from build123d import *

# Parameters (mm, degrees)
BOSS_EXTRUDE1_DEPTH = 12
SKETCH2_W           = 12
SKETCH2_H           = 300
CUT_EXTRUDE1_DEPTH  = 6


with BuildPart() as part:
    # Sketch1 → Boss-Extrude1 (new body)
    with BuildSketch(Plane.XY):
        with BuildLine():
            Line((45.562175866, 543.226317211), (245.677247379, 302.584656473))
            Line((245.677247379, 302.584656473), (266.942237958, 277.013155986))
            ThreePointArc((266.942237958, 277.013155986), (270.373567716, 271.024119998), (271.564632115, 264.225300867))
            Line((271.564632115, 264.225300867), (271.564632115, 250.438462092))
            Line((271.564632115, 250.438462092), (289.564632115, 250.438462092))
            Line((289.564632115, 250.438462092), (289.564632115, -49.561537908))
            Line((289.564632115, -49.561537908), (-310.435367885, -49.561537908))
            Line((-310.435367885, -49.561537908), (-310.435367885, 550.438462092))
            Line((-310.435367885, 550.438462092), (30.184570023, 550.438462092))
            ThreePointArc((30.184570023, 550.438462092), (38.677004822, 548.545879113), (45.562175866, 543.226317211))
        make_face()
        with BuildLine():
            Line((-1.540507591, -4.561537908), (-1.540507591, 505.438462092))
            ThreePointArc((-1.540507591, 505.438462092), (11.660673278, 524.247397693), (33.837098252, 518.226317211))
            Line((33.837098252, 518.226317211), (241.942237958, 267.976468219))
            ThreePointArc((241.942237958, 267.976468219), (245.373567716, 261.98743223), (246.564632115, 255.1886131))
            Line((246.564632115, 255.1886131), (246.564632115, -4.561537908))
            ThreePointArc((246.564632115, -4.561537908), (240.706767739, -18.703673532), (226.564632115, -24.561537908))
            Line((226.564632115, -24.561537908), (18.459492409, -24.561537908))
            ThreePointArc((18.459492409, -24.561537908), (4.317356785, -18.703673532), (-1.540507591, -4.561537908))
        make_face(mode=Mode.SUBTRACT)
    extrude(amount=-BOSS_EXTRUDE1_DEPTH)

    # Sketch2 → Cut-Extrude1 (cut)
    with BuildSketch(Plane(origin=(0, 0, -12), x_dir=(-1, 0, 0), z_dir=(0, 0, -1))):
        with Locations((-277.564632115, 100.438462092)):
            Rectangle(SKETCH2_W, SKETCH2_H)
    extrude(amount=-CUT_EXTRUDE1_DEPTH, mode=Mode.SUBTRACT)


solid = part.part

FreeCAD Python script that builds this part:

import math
import FreeCAD as App
import Part
import Sketcher

V = App.Vector
Q = App.Units.Quantity


def add_polygon(sketch, points):
    """Adds a closed chain of lines whose ends are joined by coincident constraints."""
    first, n = sketch.GeometryCount, len(points)
    for a, b in zip(points, points[1:] + points[:1]):
        sketch.addGeometry(Part.LineSegment(App.Vector(*a, 0), App.Vector(*b, 0)), False)
    for i in range(n):
        sketch.addConstraint(Sketcher.Constraint("Coincident", first + i, 2, first + (i + 1) % n, 1))

doc = App.newDocument("Part")
body = doc.addObject("PartDesign::Body", "Body")

# Sketch on XY plane
sketch1 = body.newObject("Sketcher::SketchObject", "Sketch")
sketch1.AttachmentSupport = (doc.getObject("XY_Plane"), [""])
sketch1.MapMode = "FlatFace"
sketch1.addGeometry(Part.LineSegment(V(246, 303, 0), V(46, 543, 0)), False)
sketch1.addGeometry(Part.ArcOfCircle(Part.Circle(V(30, 530, 0), V(0, 0, 1), 20), math.radians(40), math.radians(90)), False)
sketch1.addGeometry(Part.LineSegment(V(30, 550, 0), V(-310, 550, 0)), False)
sketch1.addGeometry(Part.LineSegment(V(-310, 550, 0), V(-310, -50, 0)), False)
sketch1.addGeometry(Part.LineSegment(V(-310, -50, 0), V(290, -50, 0)), False)
sketch1.addGeometry(Part.LineSegment(V(290, -50, 0), V(290, 250, 0)), False)
sketch1.addGeometry(Part.LineSegment(V(290, 250, 0), V(272, 250, 0)), False)
sketch1.addGeometry(Part.LineSegment(V(272, 250, 0), V(272, 264, 0)), False)
sketch1.addGeometry(Part.ArcOfCircle(Part.Circle(V(252, 264, 0), V(0, 0, 1), 20), math.radians(0), math.radians(40)), False)
sketch1.addGeometry(Part.LineSegment(V(267, 277, 0), V(246, 303, 0)), False)
sketch1.addGeometry(Part.LineSegment(V(-2, -5, 0), V(-2, 505, 0)), False)
sketch1.addGeometry(Part.ArcOfCircle(Part.Circle(V(18, 505, 0), V(0, 0, 1), 20), math.radians(40), math.radians(180)), False)
sketch1.addGeometry(Part.LineSegment(V(34, 518, 0), V(242, 268, 0)), False)
sketch1.addGeometry(Part.ArcOfCircle(Part.Circle(V(227, 255, 0), V(0, 0, 1), 20), math.radians(0), math.radians(40)), False)
sketch1.addGeometry(Part.LineSegment(V(247, 255, 0), V(247, -5, 0)), False)
sketch1.addGeometry(Part.ArcOfCircle(Part.Circle(V(227, -5, 0), V(0, 0, 1), 20), math.radians(-90), math.radians(0)), False)
sketch1.addGeometry(Part.LineSegment(V(227, -25, 0), V(18, -25, 0)), False)
sketch1.addGeometry(Part.ArcOfCircle(Part.Circle(V(18, -5, 0), V(0, 0, 1), 20), math.radians(180), math.radians(270)), False)
sketch1.addConstraint(Sketcher.Constraint("Tangent", 0, 2, 1, 1))
sketch1.addConstraint(Sketcher.Constraint("Tangent", 1, 2, 2, 1))
sketch1.addConstraint(Sketcher.Constraint("Coincident", 2, 2, 3, 1))
sketch1.addConstraint(Sketcher.Constraint("Coincident", 3, 2, 4, 1))
sketch1.addConstraint(Sketcher.Constraint("Coincident", 4, 2, 5, 1))
sketch1.addConstraint(Sketcher.Constraint("Coincident", 5, 2, 6, 1))
sketch1.addConstraint(Sketcher.Constraint("Coincident", 6, 2, 7, 1))
sketch1.addConstraint(Sketcher.Constraint("Tangent", 7, 2, 8, 1))
sketch1.addConstraint(Sketcher.Constraint("Tangent", 8, 2, 9, 1))
sketch1.addConstraint(Sketcher.Constraint("Coincident", 9, 2, 0, 1))
sketch1.addConstraint(Sketcher.Constraint("Tangent", 10, 2, 11, 2))
sketch1.addConstraint(Sketcher.Constraint("Tangent", 11, 1, 12, 1))
sketch1.addConstraint(Sketcher.Constraint("Tangent", 12, 2, 13, 2))
sketch1.addConstraint(Sketcher.Constraint("Tangent", 13, 1, 14, 1))
sketch1.addConstraint(Sketcher.Constraint("Tangent", 14, 2, 15, 2))
sketch1.addConstraint(Sketcher.Constraint("Tangent", 15, 1, 16, 1))
sketch1.addConstraint(Sketcher.Constraint("Tangent", 16, 2, 17, 2))
sketch1.addConstraint(Sketcher.Constraint("Tangent", 17, 1, 10, 1))
sketch1.addConstraint(Sketcher.Constraint("Horizontal", 2))
sketch1.addConstraint(Sketcher.Constraint("Vertical", 3))
sketch1.addConstraint(Sketcher.Constraint("Horizontal", 4))
sketch1.addConstraint(Sketcher.Constraint("Vertical", 5))
sketch1.addConstraint(Sketcher.Constraint("Horizontal", 6))
sketch1.addConstraint(Sketcher.Constraint("Vertical", 7))
sketch1.addConstraint(Sketcher.Constraint("Vertical", 10))
sketch1.addConstraint(Sketcher.Constraint("Vertical", 14))
sketch1.addConstraint(Sketcher.Constraint("Horizontal", 16))
sketch1.addConstraint(Sketcher.Constraint("Equal", 1, 8))
sketch1.addConstraint(Sketcher.Constraint("Equal", 8, 11))
sketch1.addConstraint(Sketcher.Constraint("Equal", 11, 13))
sketch1.addConstraint(Sketcher.Constraint("Equal", 13, 15))
sketch1.addConstraint(Sketcher.Constraint("Equal", 15, 17))
sketch1.addConstraint(Sketcher.Constraint("Parallel", 0, 9))
sketch1.addConstraint(Sketcher.Constraint("Parallel", 9, 12))
sketch1.addConstraint(Sketcher.Constraint("Equal", 4, 3))
sketch1.addConstraint(Sketcher.Constraint("Radius", 1, Q("20 mm")))
sketch1.addConstraint(Sketcher.Constraint("DistanceX", 4, 1, 4, 2, Q("600 mm")))
sketch1.addConstraint(Sketcher.Constraint("DistanceX", 6, 2, 6, 1, Q("18 mm")))
sketch1.addConstraint(Sketcher.Constraint("DistanceY", 5, 1, 5, 2, Q("300 mm")))
sketch1.addConstraint(Sketcher.Constraint("DistanceY", 10, 1, 10, 2, Q("510 mm")))
sketch1.addConstraint(Sketcher.Constraint("DistanceY", 11, 3, 1, 3, Q("25 mm")))
sketch1.addConstraint(Sketcher.Constraint("DistanceX", 13, 3, 8, 3, Q("25 mm")))
sketch1.addConstraint(Sketcher.Constraint("DistanceX", 16, 2, 16, 1, Q("208.10514 mm")))
sketch1.addConstraint(Sketcher.Constraint("DistanceY", 7, 1, 7, 2, Q("13.786839 mm")))
sketch1.addConstraint(Sketcher.Constraint("DistanceY", 14, 2, 14, 1, Q("259.750151 mm")))
sketch1.addConstraint(Sketcher.Constraint("DistanceY", -1, 1, 8, 3, Q("264.225301 mm")))
sketch1.addConstraint(Sketcher.Constraint("DistanceX", -1, 1, 11, 1, Q("33.837098 mm")))
sketch1.addConstraint(Sketcher.Constraint("DistanceY", 8, 2, 9, 2, Q("25.5715 mm")))
pad1 = body.newObject("PartDesign::Pad", "Pad")
pad1.Profile = sketch1
pad1.Length = 12
pad1.Reversed = True

# Sketch on XY plane
sketch2 = body.newObject("Sketcher::SketchObject", "Sketch001")
sketch2.AttachmentSupport = (doc.getObject("XY_Plane"), [""])
sketch2.MapMode = "FlatFace"
sketch2.AttachmentOffset = App.Placement(V(0, 0, -12), App.Rotation())
add_polygon(sketch2, [(284, 250), (284, -50), (272, -50), (272, 250)])  # lines 0-3
sketch2.addConstraint(Sketcher.Constraint("Vertical", 0))
sketch2.addConstraint(Sketcher.Constraint("Horizontal", 1))
sketch2.addConstraint(Sketcher.Constraint("Vertical", 2))
sketch2.addConstraint(Sketcher.Constraint("Horizontal", 3))
sketch2.addConstraint(Sketcher.Constraint("DistanceX", 1, 2, 1, 1, Q("12 mm")))
sketch2.addConstraint(Sketcher.Constraint("DistanceY", 0, 2, 0, 1, Q("300 mm")))
sketch2.addConstraint(Sketcher.Constraint("DistanceX", -1, 1, 0, 2, Q("283.564632 mm")))
sketch2.addConstraint(Sketcher.Constraint("DistanceY", 0, 2, -1, 1, Q("49.561538 mm")))
pocket1 = body.newObject("PartDesign::Pocket", "Pocket")
pocket1.Profile = sketch2
pocket1.Length = 6
pocket1.Reversed = True

doc.recompute()
